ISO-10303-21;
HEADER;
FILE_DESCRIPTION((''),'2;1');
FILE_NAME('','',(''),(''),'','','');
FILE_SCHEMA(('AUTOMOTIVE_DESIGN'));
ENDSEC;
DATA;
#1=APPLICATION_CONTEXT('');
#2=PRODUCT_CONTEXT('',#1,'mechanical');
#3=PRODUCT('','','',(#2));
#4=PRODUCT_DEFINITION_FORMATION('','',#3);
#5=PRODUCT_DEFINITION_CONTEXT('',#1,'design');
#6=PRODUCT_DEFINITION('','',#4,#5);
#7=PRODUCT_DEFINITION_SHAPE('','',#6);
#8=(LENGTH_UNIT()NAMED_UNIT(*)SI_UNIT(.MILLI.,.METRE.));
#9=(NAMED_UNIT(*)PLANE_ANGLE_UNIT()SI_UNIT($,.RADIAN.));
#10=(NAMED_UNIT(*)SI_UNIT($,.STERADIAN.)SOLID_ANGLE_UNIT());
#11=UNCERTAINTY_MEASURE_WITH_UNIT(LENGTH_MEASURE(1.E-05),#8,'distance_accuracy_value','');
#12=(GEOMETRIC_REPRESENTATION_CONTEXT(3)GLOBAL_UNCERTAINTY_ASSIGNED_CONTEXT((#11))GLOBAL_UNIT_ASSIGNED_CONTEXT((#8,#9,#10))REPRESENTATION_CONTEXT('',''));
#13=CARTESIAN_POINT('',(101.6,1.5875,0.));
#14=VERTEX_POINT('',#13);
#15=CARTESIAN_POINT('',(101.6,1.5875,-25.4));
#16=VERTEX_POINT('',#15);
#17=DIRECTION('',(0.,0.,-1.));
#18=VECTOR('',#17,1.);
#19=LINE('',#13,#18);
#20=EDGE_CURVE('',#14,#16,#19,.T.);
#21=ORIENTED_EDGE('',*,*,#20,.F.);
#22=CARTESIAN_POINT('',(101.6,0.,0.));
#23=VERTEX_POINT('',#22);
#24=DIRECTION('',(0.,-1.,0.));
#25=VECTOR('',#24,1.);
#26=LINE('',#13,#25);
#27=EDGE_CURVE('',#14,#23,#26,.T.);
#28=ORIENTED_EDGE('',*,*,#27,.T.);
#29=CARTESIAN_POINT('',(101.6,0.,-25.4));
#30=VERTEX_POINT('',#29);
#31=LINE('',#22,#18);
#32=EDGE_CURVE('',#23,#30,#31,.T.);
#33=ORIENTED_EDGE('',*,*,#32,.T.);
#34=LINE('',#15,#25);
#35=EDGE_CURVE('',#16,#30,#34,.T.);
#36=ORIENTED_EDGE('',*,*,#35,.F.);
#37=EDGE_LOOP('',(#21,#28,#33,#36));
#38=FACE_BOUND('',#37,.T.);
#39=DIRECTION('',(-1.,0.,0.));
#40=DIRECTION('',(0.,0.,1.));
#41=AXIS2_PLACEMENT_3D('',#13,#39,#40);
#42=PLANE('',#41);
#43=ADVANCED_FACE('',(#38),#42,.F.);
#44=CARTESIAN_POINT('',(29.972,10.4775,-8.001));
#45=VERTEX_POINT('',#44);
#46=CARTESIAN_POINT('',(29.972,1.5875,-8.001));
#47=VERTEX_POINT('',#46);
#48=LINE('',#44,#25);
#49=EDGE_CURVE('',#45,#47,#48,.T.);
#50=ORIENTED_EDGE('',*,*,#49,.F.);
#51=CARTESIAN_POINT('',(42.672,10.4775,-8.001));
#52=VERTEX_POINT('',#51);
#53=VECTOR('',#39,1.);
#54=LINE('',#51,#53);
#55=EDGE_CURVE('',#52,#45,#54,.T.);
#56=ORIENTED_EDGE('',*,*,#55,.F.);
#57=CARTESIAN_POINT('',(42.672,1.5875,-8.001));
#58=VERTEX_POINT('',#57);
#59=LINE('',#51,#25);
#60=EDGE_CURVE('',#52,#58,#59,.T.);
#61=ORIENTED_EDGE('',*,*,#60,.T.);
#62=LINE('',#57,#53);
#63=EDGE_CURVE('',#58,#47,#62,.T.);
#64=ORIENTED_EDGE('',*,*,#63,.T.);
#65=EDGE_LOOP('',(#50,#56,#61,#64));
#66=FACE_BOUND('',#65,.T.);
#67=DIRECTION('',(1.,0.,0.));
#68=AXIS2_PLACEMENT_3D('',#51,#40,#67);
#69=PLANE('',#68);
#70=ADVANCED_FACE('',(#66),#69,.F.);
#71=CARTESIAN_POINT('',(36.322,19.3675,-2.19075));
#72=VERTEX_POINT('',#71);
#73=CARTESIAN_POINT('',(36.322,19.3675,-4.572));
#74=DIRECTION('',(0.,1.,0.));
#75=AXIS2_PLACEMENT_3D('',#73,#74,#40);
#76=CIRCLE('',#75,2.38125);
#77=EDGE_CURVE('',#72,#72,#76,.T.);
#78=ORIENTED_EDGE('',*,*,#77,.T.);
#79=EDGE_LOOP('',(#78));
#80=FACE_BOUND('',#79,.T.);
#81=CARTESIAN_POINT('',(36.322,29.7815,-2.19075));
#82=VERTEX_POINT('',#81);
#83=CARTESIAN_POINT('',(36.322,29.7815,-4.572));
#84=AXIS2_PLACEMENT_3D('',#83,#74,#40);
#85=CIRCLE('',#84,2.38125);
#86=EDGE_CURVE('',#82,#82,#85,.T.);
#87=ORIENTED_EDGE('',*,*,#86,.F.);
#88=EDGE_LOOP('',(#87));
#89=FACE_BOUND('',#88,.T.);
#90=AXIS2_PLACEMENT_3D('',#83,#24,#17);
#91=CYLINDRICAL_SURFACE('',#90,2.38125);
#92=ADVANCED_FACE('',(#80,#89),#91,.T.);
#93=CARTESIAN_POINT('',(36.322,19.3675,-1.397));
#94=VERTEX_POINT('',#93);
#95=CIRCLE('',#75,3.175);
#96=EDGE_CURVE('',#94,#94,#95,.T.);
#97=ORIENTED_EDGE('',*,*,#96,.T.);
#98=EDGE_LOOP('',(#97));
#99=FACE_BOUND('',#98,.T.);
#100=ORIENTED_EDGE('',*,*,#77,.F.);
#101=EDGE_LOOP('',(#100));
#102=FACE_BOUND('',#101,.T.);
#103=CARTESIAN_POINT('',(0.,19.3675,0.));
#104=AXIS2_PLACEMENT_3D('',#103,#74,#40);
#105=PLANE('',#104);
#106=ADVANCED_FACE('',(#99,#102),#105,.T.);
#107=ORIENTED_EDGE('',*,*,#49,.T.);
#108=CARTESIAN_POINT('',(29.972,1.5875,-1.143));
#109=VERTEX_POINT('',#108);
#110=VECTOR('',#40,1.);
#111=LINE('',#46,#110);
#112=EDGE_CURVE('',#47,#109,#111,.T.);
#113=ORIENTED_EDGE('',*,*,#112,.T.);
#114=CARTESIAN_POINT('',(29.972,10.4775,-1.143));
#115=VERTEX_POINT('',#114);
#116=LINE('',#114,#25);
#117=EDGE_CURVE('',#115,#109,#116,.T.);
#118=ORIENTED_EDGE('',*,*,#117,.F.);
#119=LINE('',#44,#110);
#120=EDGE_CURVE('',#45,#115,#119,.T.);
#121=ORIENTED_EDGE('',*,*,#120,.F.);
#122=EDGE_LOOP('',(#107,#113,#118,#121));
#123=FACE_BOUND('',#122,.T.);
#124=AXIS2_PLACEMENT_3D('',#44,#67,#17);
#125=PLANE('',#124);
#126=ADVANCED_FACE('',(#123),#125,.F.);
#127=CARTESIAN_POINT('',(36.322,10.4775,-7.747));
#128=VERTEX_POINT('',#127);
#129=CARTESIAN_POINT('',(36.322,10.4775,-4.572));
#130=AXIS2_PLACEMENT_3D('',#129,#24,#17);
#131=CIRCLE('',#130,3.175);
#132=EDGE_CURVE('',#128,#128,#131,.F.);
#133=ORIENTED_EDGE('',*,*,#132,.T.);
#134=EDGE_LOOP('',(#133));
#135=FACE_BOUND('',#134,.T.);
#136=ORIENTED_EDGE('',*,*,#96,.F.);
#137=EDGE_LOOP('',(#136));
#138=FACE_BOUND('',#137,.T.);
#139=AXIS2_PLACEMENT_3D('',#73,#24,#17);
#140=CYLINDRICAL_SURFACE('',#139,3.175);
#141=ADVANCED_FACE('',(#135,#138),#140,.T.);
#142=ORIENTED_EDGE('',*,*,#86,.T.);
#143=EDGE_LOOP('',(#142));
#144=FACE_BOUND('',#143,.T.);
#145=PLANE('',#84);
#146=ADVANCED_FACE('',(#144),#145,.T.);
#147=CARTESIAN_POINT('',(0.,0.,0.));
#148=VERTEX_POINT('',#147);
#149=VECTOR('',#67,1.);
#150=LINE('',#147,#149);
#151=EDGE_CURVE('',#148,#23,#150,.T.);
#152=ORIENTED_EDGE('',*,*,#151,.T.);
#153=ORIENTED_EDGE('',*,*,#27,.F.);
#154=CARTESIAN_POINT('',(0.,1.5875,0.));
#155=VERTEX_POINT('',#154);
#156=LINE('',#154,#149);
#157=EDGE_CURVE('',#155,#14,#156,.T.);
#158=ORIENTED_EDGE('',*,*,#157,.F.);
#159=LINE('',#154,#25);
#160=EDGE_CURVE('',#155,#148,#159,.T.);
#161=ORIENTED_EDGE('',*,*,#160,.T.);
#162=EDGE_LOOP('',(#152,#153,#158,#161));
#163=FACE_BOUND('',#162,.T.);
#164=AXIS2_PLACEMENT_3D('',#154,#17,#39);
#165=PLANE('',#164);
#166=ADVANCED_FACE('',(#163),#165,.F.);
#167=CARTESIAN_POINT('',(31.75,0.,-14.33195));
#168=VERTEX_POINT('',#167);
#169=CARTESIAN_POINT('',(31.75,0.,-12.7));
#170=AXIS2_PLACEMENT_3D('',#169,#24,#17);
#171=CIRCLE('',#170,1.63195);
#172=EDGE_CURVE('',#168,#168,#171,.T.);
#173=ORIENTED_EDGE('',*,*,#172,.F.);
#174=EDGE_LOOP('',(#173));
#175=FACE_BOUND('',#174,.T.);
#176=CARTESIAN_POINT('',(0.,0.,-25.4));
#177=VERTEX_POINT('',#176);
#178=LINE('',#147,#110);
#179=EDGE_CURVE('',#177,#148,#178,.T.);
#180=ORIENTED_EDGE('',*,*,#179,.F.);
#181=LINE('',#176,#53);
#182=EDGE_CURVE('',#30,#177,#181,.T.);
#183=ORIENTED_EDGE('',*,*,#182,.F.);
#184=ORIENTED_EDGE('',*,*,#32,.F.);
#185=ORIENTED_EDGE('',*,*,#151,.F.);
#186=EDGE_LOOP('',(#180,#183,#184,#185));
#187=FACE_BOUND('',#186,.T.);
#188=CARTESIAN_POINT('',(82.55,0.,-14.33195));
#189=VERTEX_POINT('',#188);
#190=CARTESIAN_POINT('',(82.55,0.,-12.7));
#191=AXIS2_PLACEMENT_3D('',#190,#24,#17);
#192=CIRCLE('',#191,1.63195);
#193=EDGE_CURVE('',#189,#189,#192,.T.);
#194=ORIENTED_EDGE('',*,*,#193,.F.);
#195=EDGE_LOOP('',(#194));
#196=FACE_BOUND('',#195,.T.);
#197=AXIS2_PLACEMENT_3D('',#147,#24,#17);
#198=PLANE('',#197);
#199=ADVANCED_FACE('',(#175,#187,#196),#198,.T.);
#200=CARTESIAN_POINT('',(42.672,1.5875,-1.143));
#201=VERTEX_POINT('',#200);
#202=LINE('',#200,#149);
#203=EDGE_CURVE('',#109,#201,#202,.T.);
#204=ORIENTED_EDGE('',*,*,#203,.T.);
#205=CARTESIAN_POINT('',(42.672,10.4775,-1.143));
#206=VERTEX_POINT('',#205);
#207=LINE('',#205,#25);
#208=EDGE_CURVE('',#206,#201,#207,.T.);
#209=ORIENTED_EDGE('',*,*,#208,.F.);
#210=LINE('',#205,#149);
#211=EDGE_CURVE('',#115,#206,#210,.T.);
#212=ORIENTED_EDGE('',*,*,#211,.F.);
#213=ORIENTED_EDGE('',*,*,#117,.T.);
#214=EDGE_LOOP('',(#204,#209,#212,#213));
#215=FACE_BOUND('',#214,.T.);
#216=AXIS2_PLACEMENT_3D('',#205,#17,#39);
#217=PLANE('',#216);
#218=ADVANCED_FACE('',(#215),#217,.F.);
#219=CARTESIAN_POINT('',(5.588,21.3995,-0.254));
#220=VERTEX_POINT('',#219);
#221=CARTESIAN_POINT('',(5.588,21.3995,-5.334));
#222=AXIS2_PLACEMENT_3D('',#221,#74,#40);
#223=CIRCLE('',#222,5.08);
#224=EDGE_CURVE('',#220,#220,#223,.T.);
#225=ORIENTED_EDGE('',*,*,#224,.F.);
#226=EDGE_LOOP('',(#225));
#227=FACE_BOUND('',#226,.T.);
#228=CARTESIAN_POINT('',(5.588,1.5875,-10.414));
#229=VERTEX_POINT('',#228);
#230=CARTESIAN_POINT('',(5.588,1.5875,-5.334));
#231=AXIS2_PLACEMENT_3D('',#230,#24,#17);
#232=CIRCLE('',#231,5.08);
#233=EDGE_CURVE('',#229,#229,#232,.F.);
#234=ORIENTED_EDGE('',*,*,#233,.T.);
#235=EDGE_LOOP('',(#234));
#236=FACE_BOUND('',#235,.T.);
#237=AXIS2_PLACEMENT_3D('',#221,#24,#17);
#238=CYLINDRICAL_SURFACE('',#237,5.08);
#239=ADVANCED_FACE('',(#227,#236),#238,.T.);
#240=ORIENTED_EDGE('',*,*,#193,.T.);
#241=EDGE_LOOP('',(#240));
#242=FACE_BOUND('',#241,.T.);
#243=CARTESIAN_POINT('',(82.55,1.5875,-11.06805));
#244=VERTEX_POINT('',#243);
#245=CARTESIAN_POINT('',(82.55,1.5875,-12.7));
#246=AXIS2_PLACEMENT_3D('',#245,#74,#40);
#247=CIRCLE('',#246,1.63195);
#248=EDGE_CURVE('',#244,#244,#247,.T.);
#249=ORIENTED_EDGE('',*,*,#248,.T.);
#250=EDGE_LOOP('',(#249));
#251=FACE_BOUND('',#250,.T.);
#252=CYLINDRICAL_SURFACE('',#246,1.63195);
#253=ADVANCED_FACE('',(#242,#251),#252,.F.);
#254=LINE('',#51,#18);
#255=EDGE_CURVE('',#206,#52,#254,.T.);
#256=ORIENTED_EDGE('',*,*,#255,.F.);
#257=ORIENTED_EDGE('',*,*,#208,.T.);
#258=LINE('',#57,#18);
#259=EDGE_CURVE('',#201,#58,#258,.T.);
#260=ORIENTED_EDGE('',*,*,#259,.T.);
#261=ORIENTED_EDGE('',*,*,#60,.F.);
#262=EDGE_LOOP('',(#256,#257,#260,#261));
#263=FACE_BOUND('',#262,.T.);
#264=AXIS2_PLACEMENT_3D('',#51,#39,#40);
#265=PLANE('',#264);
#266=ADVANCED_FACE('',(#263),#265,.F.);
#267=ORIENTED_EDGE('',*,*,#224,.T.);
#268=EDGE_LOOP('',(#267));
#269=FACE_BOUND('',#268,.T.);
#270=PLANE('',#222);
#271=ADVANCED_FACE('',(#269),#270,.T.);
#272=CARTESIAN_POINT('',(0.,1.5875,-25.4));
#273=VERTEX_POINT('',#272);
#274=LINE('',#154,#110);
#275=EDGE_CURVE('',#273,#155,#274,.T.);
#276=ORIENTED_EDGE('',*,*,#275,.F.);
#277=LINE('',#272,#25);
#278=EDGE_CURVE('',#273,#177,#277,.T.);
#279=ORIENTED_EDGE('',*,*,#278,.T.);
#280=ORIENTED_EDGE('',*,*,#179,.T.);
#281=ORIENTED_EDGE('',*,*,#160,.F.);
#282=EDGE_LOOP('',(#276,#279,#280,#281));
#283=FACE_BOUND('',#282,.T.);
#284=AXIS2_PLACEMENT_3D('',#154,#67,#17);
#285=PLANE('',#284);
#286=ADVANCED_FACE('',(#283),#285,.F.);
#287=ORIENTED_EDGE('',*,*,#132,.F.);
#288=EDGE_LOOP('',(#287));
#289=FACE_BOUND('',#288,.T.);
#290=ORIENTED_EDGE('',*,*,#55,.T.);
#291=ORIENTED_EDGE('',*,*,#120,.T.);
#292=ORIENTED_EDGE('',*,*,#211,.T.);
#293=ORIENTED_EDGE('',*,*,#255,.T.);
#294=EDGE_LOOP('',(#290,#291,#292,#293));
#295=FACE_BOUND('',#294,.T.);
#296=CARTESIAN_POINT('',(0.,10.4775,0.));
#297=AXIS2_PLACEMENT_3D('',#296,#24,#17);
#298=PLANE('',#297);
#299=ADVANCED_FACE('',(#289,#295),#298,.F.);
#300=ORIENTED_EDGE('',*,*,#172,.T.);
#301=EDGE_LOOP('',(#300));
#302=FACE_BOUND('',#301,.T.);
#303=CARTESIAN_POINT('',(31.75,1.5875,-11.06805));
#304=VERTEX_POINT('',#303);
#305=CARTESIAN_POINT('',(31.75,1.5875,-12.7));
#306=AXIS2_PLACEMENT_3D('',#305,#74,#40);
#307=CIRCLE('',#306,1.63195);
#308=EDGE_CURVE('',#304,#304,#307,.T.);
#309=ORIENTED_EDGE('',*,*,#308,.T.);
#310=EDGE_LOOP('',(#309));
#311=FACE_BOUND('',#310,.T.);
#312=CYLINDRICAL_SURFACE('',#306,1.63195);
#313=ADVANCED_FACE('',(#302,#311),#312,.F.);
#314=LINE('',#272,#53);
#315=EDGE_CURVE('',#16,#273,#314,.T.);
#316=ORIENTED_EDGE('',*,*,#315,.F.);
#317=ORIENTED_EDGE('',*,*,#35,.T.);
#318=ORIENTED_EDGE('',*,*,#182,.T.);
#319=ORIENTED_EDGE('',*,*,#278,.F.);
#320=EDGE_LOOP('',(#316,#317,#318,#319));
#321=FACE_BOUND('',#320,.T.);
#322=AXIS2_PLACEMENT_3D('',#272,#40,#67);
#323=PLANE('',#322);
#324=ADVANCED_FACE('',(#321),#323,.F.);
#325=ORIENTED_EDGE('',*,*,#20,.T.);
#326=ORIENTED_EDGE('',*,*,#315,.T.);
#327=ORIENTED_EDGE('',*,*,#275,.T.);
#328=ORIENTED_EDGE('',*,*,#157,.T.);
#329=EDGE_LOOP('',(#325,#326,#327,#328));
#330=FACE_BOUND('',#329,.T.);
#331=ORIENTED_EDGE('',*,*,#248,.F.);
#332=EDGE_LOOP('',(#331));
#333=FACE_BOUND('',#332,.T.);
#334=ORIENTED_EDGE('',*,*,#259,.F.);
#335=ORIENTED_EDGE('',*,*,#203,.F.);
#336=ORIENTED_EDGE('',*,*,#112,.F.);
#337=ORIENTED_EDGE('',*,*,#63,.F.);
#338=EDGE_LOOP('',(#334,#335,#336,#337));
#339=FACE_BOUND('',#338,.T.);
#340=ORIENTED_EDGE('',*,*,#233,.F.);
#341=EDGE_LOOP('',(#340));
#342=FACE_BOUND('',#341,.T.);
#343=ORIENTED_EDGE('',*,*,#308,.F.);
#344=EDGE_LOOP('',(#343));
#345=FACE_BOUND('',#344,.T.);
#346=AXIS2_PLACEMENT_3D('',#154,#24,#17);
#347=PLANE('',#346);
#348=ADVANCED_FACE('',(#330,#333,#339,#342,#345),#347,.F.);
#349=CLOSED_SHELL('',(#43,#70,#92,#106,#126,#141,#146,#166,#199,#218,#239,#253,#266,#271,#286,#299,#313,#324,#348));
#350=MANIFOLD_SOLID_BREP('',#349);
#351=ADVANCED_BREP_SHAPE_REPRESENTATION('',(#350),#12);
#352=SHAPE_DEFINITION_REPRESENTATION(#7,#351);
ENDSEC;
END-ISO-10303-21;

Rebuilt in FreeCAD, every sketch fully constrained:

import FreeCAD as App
import Part
import Sketcher

V = App.Vector
Q = App.Units.Quantity

doc = App.newDocument("Part")
body = doc.addObject("PartDesign::Body", "Body")

sketch1 = doc.addObject("Sketcher::SketchObject", "Sketch")
body.addObject(sketch1)
sketch1.AttachmentSupport = (doc.XZ_Plane, [""])
sketch1.MapMode = "FlatFace"
sketch1.addGeometry(Part.LineSegment(V(0, -25, 0), V(0, 0, 0)), False)
sketch1.addGeometry(Part.LineSegment(V(0, 0, 0), V(102, 0, 0)), False)
sketch1.addGeometry(Part.LineSegment(V(102, 0, 0), V(102, -25, 0)), False)
sketch1.addGeometry(Part.LineSegment(V(102, -25, 0), V(0, -25, 0)), False)
sketch1.addConstraint(Sketcher.Constraint("Coincident", 0, 2, 1, 1))
sketch1.addConstraint(Sketcher.Constraint("Coincident", 1, 2, 2, 1))
sketch1.addConstraint(Sketcher.Constraint("Coincident", 2, 2, 3, 1))
sketch1.addConstraint(Sketcher.Constraint("Coincident", 3, 2, 0, 1))
sketch1.addConstraint(Sketcher.Constraint("Vertical", 0))
sketch1.addConstraint(Sketcher.Constraint("Horizontal", 1))
sketch1.addConstraint(Sketcher.Constraint("Vertical", 2))
sketch1.addConstraint(Sketcher.Constraint("Horizontal", 3))
sketch1.addConstraint(Sketcher.Constraint("Coincident", 0, 2, -1, 1))
sketch1.addConstraint(Sketcher.Constraint("DistanceX", 1, 1, 1, 2, Q("4 in")))
sketch1.addConstraint(Sketcher.Constraint("DistanceY", 0, 1, 0, 2, Q("1 in")))
pad1 = doc.addObject("PartDesign::Pad", "Pad")
body.addObject(pad1)
pad1.Profile = sketch1
pad1.Length = Q("0.0625 in")
pad1.Reversed = True

sketch2 = doc.addObject("Sketcher::SketchObject", "Sketch001")
body.addObject(sketch2)
sketch2.AttachmentSupport = (doc.XZ_Plane, [""])
sketch2.MapMode = "FlatFace"
sketch2.AttachmentOffset = App.Placement(V(0, 0, -0.0625 * 25.4), App.Rotation())
sketch2.addGeometry(Part.Circle(V(31.8, -12.7, 0), V(0, 0, 1), 1.6), False)
sketch2.addGeometry(Part.Circle(V(82.5, -12.7, 0), V(0, 0, 1), 1.6), False)
sketch2.addConstraint(Sketcher.Constraint("Equal", 0, 1))
sketch2.addConstraint(Sketcher.Constraint("Horizontal", 0, 3, 1, 3))
sketch2.addConstraint(Sketcher.Constraint("DistanceX", 0, 3, 1, 3, Q("2 in")))
sketch2.addConstraint(Sketcher.Constraint("Diameter", 0, Q("0.1285 in")))
sketch2.addConstraint(Sketcher.Constraint("DistanceY", 0, 3, -1, 1, Q("0.5 in")))
sketch2.addConstraint(Sketcher.Constraint("DistanceX", -1, 1, 0, 3, Q("1.25 in")))
doc.recompute()
hole = doc.addObject("PartDesign::Hole", "Hole")
body.addObject(hole)
hole.Profile = sketch2
hole.ThreadType = "None"
hole.Diameter = Q("0.1285 in")
hole.DepthType = "Dimension"
hole.Depth = Q("0.0625 in")
hole.DrillPoint = "Flat"
hole.Reversed = True

sketch3 = doc.addObject("Sketcher::SketchObject", "Sketch002")
body.addObject(sketch3)
sketch3.AttachmentSupport = (doc.XZ_Plane, [""])
sketch3.MapMode = "FlatFace"
sketch3.AttachmentOffset = App.Placement(V(0, 0, -0.0625 * 25.4), App.Rotation())
sketch3.addGeometry(Part.Circle(V(6, -5, 0), V(0, 0, 1), 5), False)
sketch3.addConstraint(Sketcher.Constraint("Diameter", 0, Q("0.4 in")))
sketch3.addConstraint(Sketcher.Constraint("DistanceX", -1, 1, 0, 3, Q("0.22 in")))
sketch3.addConstraint(Sketcher.Constraint("DistanceY", 0, 3, -1, 1, Q("0.21 in")))
pad2 = doc.addObject("PartDesign::Pad", "Pad001")
body.addObject(pad2)
pad2.Profile = sketch3
pad2.Length = Q("0.78 in")
pad2.Reversed = True

sketch4 = doc.addObject("Sketcher::SketchObject", "Sketch003")
body.addObject(sketch4)
sketch4.AttachmentSupport = (doc.XZ_Plane, [""])
sketch4.MapMode = "FlatFace"
sketch4.AttachmentOffset = App.Placement(V(0, 0, -0.0625 * 25.4), App.Rotation())
sketch4.addGeometry(Part.LineSegment(V(30, -8, 0), V(30, -1, 0)), False)
sketch4.addGeometry(Part.LineSegment(V(30, -1, 0), V(43, -1, 0)), False)
sketch4.addGeometry(Part.LineSegment(V(43, -1, 0), V(43, -8, 0)), False)
sketch4.addGeometry(Part.LineSegment(V(43, -8, 0), V(30, -8, 0)), False)
sketch4.addConstraint(Sketcher.Constraint("Coincident", 0, 2, 1, 1))
sketch4.addConstraint(Sketcher.Constraint("Coincident", 1, 2, 2, 1))
sketch4.addConstraint(Sketcher.Constraint("Coincident", 2, 2, 3, 1))
sketch4.addConstraint(Sketcher.Constraint("Coincident", 3, 2, 0, 1))
sketch4.addConstraint(Sketcher.Constraint("Vertical", 0))
sketch4.addConstraint(Sketcher.Constraint("Horizontal", 1))
sketch4.addConstraint(Sketcher.Constraint("Vertical", 2))
sketch4.addConstraint(Sketcher.Constraint("Horizontal", 3))
sketch4.addConstraint(Sketcher.Constraint("DistanceX", 1, 1, 1, 2, Q("0.5 in")))
sketch4.addConstraint(Sketcher.Constraint("DistanceY", 0, 1, 0, 2, Q("0.27 in")))
sketch4.addConstraint(Sketcher.Constraint("DistanceX", -1, 1, 0, 2, Q("1.18 in")))
sketch4.addConstraint(Sketcher.Constraint("DistanceY", 0, 2, -1, 1, Q("0.045 in")))
pad3 = doc.addObject("PartDesign::Pad", "Pad002")
body.addObject(pad3)
pad3.Profile = sketch4
pad3.Length = Q("0.35 in")
pad3.Reversed = True

sketch5 = doc.addObject("Sketcher::SketchObject", "Sketch004")
body.addObject(sketch5)
sketch5.AttachmentSupport = (doc.XZ_Plane, [""])
sketch5.MapMode = "FlatFace"
sketch5.AttachmentOffset = App.Placement(V(0, 0, -0.4125 * 25.4), App.Rotation())
sketch5.addGeometry(Part.Circle(V(36.3, -4.6, 0), V(0, 0, 1), 3.2), False)
sketch5.addConstraint(Sketcher.Constraint("Diameter", 0, Q("0.25 in")))
sketch5.addConstraint(Sketcher.Constraint("DistanceX", -1, 1, 0, 3, Q("1.43 in")))
sketch5.addConstraint(Sketcher.Constraint("DistanceY", 0, 3, -1, 1, Q("0.18 in")))
pad4 = doc.addObject("PartDesign::Pad", "Pad003")
body.addObject(pad4)
pad4.Profile = sketch5
pad4.Length = Q("0.35 in")
pad4.Reversed = True

sketch6 = doc.addObject("Sketcher::SketchObject", "Sketch005")
body.addObject(sketch6)
sketch6.AttachmentSupport = (doc.XZ_Plane, [""])
sketch6.MapMode = "FlatFace"
sketch6.AttachmentOffset = App.Placement(V(0, 0, -0.7625 * 25.4), App.Rotation())
sketch6.addGeometry(Part.Circle(V(36.3, -4.6, 0), V(0, 0, 1), 2.4), False)
sketch6.addConstraint(Sketcher.Constraint("Diameter", 0, Q("0.1875 in")))
sketch6.addConstraint(Sketcher.Constraint("DistanceX", -1, 1, 0, 3, Q("1.43 in")))
sketch6.addConstraint(Sketcher.Constraint("DistanceY", 0, 3, -1, 1, Q("0.18 in")))
pad5 = doc.addObject("PartDesign::Pad", "Pad004")
body.addObject(pad5)
pad5.Profile = sketch6
pad5.Length = Q("0.41 in")
pad5.Reversed = True

doc.recompute()
